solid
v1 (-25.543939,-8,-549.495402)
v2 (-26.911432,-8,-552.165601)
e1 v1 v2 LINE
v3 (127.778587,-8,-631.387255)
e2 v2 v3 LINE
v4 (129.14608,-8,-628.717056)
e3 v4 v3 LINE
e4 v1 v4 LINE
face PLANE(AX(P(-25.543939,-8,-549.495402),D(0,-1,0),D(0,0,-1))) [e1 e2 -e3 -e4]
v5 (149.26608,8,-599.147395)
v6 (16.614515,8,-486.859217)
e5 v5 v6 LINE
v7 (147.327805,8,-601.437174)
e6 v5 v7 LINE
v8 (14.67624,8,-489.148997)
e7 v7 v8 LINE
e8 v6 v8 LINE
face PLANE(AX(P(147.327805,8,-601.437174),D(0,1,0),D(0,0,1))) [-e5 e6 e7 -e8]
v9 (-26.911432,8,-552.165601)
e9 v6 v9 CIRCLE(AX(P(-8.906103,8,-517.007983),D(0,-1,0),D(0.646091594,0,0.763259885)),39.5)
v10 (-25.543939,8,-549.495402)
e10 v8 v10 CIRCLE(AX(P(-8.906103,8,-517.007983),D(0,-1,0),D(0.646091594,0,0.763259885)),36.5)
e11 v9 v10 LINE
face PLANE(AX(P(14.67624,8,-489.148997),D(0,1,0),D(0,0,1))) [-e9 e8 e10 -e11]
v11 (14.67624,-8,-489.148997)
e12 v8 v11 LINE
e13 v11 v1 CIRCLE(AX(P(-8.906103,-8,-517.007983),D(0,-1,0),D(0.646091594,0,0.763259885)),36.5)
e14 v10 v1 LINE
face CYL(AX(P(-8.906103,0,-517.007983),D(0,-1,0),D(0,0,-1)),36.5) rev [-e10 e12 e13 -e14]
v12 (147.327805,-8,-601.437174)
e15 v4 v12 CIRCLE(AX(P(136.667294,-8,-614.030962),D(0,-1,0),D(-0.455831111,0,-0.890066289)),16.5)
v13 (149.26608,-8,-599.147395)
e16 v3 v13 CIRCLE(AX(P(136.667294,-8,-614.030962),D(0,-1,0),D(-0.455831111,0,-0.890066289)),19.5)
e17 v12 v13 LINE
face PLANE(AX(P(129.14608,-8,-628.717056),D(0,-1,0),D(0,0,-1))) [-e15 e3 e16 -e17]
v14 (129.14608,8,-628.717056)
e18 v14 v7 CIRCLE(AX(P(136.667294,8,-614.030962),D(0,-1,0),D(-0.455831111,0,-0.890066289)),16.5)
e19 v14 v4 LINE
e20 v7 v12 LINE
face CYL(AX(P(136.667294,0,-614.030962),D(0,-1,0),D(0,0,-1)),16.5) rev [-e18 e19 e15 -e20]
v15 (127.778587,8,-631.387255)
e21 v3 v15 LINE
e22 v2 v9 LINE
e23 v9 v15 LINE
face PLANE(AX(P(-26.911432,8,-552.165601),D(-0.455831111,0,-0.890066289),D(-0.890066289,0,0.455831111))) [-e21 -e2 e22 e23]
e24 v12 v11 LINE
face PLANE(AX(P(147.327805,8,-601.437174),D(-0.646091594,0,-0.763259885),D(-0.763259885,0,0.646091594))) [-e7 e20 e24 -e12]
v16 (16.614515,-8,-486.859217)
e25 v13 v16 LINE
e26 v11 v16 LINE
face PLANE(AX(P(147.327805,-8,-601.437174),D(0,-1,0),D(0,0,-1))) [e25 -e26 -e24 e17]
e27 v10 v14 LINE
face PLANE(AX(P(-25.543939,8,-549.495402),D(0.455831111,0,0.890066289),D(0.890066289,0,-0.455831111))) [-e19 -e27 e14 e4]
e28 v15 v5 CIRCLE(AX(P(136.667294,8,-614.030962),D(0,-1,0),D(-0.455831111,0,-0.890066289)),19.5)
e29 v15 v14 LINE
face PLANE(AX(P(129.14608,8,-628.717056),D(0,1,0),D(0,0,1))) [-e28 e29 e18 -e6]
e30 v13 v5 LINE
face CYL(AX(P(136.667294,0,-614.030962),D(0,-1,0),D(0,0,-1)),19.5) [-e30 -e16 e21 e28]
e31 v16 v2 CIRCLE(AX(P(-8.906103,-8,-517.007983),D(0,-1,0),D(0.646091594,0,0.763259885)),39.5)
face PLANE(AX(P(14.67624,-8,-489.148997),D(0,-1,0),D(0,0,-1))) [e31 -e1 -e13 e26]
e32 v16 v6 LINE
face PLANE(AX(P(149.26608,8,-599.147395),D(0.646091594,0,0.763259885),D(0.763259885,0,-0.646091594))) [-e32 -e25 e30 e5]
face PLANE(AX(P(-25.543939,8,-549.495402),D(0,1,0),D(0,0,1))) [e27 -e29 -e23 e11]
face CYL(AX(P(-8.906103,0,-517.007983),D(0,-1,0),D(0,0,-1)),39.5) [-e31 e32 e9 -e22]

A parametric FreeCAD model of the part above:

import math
import FreeCAD as App
import Part
import Sketcher

V = App.Vector
Q = App.Units.Quantity

doc = App.newDocument("Part")
params = doc.addObject("Spreadsheet::Sheet", "Params")
for row, (alias, value) in enumerate([
    ("sketch1_width", "3 mm"),
    ("sketch1_height", "16 mm"),
    ("sketch2_radius", "18 mm"),
    ("sketch2_radius2", "38 mm"),
], start=1):
    params.set(f"A{row}", alias)
    params.set(f"B{row}", "=" + value)
    params.setAlias(f"B{row}", alias)

body = doc.addObject("PartDesign::Body", "Body")

sketch1 = doc.addObject("Sketcher::SketchObject", "Sketch")
body.addObject(sketch1)
sketch1.Placement = App.Placement(V(15.645377, 0, -488.004107), App.Rotation(V(0.646091594, 0, 0.763259885), V(0, 1, 0), V(-0.763259885, 0, 0.646091594), "ZXY"))
sketch1.addGeometry(Part.LineSegment(V(-1.5, 8, 0), V(-1.5, -8, 0)), False)
sketch1.addGeometry(Part.LineSegment(V(-1.5, -8, 0), V(1.5, -8, 0)), False)
sketch1.addGeometry(Part.LineSegment(V(1.5, -8, 0), V(1.5, 8, 0)), False)
sketch1.addGeometry(Part.LineSegment(V(1.5, 8, 0), V(-1.5, 8, 0)), False)
sketch1.addConstraint(Sketcher.Constraint("Coincident", 0, 2, 1, 1))
sketch1.addConstraint(Sketcher.Constraint("Coincident", 1, 2, 2, 1))
sketch1.addConstraint(Sketcher.Constraint("Coincident", 2, 2, 3, 1))
sketch1.addConstraint(Sketcher.Constraint("Coincident", 3, 2, 0, 1))
sketch1.addConstraint(Sketcher.Constraint("Vertical", 0))
sketch1.addConstraint(Sketcher.Constraint("Horizontal", 1))
sketch1.addConstraint(Sketcher.Constraint("Vertical", 2))
sketch1.addConstraint(Sketcher.Constraint("Horizontal", 3))
sketch1.addConstraint(Sketcher.Constraint("Symmetric", 0, 2, 2, 2, -1, 1))
sketch1.addConstraint(Sketcher.Constraint("DistanceX", 1, 1, 1, 2, Q("3 mm")))
sketch1.addConstraint(Sketcher.Constraint("DistanceY", 0, 2, 0, 1, Q("16 mm")))
sketch1.setExpression("Constraints[9]", "Params.sketch1_width")
sketch1.setExpression("Constraints[10]", "Params.sketch1_height")

sketch2 = doc.addObject("Sketcher::SketchObject", "Sketch001")
body.addObject(sketch2)
sketch2.AttachmentSupport = (doc.XZ_Plane, [""])
sketch2.MapMode = "FlatFace"
sketch2.addGeometry(Part.LineSegment(V(-26.227686, -550.830502, 0), V(128.462334, -630.052156, 0)), False)
sketch2.addGeometry(Part.ArcOfCircle(Part.Circle(V(136.667294, -614.030962, 0), V(0, 0, 1), 18), math.radians(-117.118422), math.radians(49.752431)), False)
sketch2.addGeometry(Part.LineSegment(V(148.296942, -600.292284, 0), V(15.645377, -488.004107, 0)), False)
sketch2.addGeometry(Part.ArcOfCircle(Part.Circle(V(-8.906103, -517.007983, 0), V(0, 0, 1), 38), math.radians(49.752431), math.radians(242.881578)), False)
sketch2.addConstraint(Sketcher.Constraint("Coincident", 0, 2, 1, 1))
sketch2.addConstraint(Sketcher.Constraint("Coincident", 1, 2, 2, 1))
sketch2.addConstraint(Sketcher.Constraint("Coincident", 2, 2, 3, 1))
sketch2.addConstraint(Sketcher.Constraint("Coincident", 3, 2, 0, 1))
sketch2.addConstraint(Sketcher.Constraint("Radius", 1, Q("18 mm")))
sketch2.addConstraint(Sketcher.Constraint("Radius", 3, Q("38 mm")))
sketch2.addConstraint(Sketcher.Constraint("DistanceY", 3, 2, -1, 1, Q("550.830502 mm")))
sketch2.addConstraint(Sketcher.Constraint("DistanceY", 1, 2, 3, 3, Q("83.284302 mm")))
sketch2.addConstraint(Sketcher.Constraint("DistanceY", 1, 3, 3, 3, Q("97.022979 mm")))
sketch2.addConstraint(Sketcher.Constraint("DistanceX", 0, 2, 1, 3, Q("8.20496 mm")))
sketch2.addConstraint(Sketcher.Constraint("DistanceX", 3, 3, 2, 2, Q("24.551481 mm")))
sketch2.addConstraint(Sketcher.Constraint("DistanceY", 3, 2, 3, 3, Q("33.822519 mm")))
sketch2.addConstraint(Sketcher.Constraint("DistanceX", 3, 2, 0, 2, Q("154.690019 mm")))
sketch2.addConstraint(Sketcher.Constraint("DistanceX", -1, 1, 1, 3, Q("136.667294 mm")))
sketch2.setExpression("Constraints[4]", "Params.sketch2_radius")
sketch2.setExpression("Constraints[5]", "Params.sketch2_radius2")
doc.recompute()

additivepipe = doc.addObject("PartDesign::AdditivePipe", "AdditivePipe")
body.addObject(additivepipe)
additivepipe.Profile = sketch1
additivepipe.Spine = (sketch2, ["Edge1", "Edge2", "Edge3", "Edge4"])

doc.recompute()
